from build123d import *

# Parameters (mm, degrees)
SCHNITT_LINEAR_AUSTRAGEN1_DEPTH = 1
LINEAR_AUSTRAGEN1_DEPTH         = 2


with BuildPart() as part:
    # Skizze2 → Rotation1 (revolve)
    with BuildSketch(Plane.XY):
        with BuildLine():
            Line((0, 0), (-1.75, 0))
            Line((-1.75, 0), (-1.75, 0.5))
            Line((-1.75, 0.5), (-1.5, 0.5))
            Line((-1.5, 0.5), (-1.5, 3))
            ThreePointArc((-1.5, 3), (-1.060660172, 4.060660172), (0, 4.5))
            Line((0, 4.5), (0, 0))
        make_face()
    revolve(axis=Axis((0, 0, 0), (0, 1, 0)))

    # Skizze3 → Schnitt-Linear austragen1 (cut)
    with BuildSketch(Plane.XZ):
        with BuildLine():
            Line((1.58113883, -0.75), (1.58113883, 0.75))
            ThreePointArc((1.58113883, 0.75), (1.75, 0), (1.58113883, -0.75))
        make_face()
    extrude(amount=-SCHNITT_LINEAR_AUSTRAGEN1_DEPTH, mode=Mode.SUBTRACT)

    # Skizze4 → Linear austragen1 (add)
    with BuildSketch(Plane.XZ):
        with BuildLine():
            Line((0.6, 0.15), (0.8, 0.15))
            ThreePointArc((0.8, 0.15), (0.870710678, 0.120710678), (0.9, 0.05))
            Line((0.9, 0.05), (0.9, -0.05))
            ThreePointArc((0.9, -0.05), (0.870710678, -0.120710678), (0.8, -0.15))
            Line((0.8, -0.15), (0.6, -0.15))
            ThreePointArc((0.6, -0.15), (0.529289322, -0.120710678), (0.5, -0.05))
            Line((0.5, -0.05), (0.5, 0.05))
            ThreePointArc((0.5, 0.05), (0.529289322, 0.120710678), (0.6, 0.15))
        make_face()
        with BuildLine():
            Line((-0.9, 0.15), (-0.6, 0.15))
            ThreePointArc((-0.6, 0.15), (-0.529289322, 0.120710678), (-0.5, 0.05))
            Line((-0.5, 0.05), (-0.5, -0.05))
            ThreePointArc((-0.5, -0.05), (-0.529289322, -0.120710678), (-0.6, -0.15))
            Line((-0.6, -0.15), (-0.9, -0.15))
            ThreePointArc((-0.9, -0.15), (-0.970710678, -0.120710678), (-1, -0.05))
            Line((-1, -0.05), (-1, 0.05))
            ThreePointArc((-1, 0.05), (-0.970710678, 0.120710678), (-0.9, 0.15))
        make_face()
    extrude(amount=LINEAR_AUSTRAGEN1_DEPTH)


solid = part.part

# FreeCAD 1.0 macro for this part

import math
import FreeCAD as App
import Part
import Sketcher

doc = App.newDocument("Part")
params = doc.addObject("Spreadsheet::Sheet", "Params")
for row, (alias, value) in enumerate([
    ("sketch1_radius", "1.5 mm"),
    ("sketch1_height", "4.5 mm"),
    ("sketch1_height2", "2.5 mm"),
    ("sketch1_width", "1.75 mm"),
    ("revolution_angle", "360 deg"),
    ("sketch2_radius", "1.75 mm"),
    ("sketch2_height", "1.5 mm"),
    ("pocket1_length", "1 mm"),
    ("sketch3_radius", "0.1 mm"),
    ("sketch3_width", "0.2 mm"),
    ("sketch3_width2", "0.3 mm"),
    ("sketch3_height", "0.1 mm"),
    ("pad1_length", "2 mm"),
], start=1):
    params.set(f"A{row}", alias)
    params.set(f"B{row}", "=" + value)
    params.setAlias(f"B{row}", alias)

body = doc.addObject("PartDesign::Body", "Body")

sketch1 = body.newObject("Sketcher::SketchObject", "Sketch")
sketch1.AttachmentSupport = (doc.getObject("XY_Plane"), [""])
sketch1.MapMode = "FlatFace"
sketch1.addGeometry([
    Part.LineSegment(App.Vector(-1.75, 0, 0), App.Vector(0, 0, 0)),
    Part.LineSegment(App.Vector(0, 0, 0), App.Vector(0, 4.5, 0)),
    Part.ArcOfCircle(Part.Circle(App.Vector(0, 3, 0), App.Vector(0, 0, 1), 1.5), math.radians(90), math.radians(180)),
    Part.LineSegment(App.Vector(-1.5, 3, 0), App.Vector(-1.5, 0.5, 0)),
    Part.LineSegment(App.Vector(-1.5, 0.5, 0), App.Vector(-1.75, 0.5, 0)),
    Part.LineSegment(App.Vector(-1.75, 0.5, 0), App.Vector(-1.75, 0, 0)),
], False)
sketch1.addConstraint([
    Sketcher.Constraint("Coincident", 0, 2, 1, 1),
    Sketcher.Constraint("Coincident", 1, 2, 2, 1),
    Sketcher.Constraint("Tangent", 2, 2, 3, 1),
    Sketcher.Constraint("Coincident", 3, 2, 4, 1),
    Sketcher.Constraint("Coincident", 4, 2, 5, 1),
    Sketcher.Constraint("Coincident", 5, 2, 0, 1),
    Sketcher.Constraint("Horizontal", 0),
    Sketcher.Constraint("Vertical", 1),
    Sketcher.Constraint("Vertical", 3),
    Sketcher.Constraint("Horizontal", 4),
    Sketcher.Constraint("Vertical", 5),
    Sketcher.Constraint("Coincident", 0, 2, -1, 1),
    Sketcher.Constraint("PointOnObject", 2, 3, -2),
    Sketcher.Constraint("Radius", 2, 1.5),
    Sketcher.Constraint("DistanceY", 1, 1, 1, 2, 4.5),
    Sketcher.Constraint("DistanceY", 3, 2, 3, 1, 2.5),
    Sketcher.Constraint("DistanceX", 0, 1, 0, 2, 1.75),
])
sketch1.setExpression("Constraints[13]", "Params.sketch1_radius")
sketch1.setExpression("Constraints[14]", "Params.sketch1_height")
sketch1.setExpression("Constraints[15]", "Params.sketch1_height2")
sketch1.setExpression("Constraints[16]", "Params.sketch1_width")
revolution = body.newObject("PartDesign::Revolution", "Revolution")
revolution.Profile = sketch1
revolution.ReferenceAxis = (sketch1, ["V_Axis"])
revolution.setExpression("Angle", "Params.revolution_angle")

sketch2 = body.newObject("Sketcher::SketchObject", "Sketch001")
sketch2.AttachmentSupport = (doc.getObject("XZ_Plane"), [""])
sketch2.MapMode = "FlatFace"
sketch2.addGeometry([
    Part.LineSegment(App.Vector(1.6, 0.8, 0), App.Vector(1.6, -0.8, 0)),
    Part.ArcOfCircle(Part.Circle(App.Vector(0, 0, 0), App.Vector(0, 0, 1), 1.7), math.radians(-25), math.radians(25)),
], False)
sketch2.addConstraint([
    Sketcher.Constraint("Coincident", 0, 1, 1, 2),
    Sketcher.Constraint("Coincident", 1, 1, 0, 2),
    Sketcher.Constraint("Vertical", 0),
    Sketcher.Constraint("Coincident", 1, 3, -1, 1),
    Sketcher.Constraint("Radius", 1, 1.75),
    Sketcher.Constraint("DistanceY", 0, 2, 0, 1, 1.5),
])
sketch2.setExpression("Constraints[4]", "Params.sketch2_radius")
sketch2.setExpression("Constraints[5]", "Params.sketch2_height")
pocket1 = body.newObject("PartDesign::Pocket", "Pocket")
pocket1.Profile = sketch2
pocket1.setExpression("Length", "Params.pocket1_length")

sketch3 = body.newObject("Sketcher::SketchObject", "Sketch002")
sketch3.AttachmentSupport = (doc.getObject("XZ_Plane"), [""])
sketch3.MapMode = "FlatFace"
sketch3.addGeometry([
    Part.LineSegment(App.Vector(0.8, 0.15, 0), App.Vector(0.6, 0.15, 0)),
    Part.ArcOfCircle(Part.Circle(App.Vector(0.6, 0.05, 0), App.Vector(0, 0, 1), 0.1), math.radians(90), math.radians(180)),
    Part.LineSegment(App.Vector(0.5, 0.05, 0), App.Vector(0.5, -0.05, 0)),
    Part.ArcOfCircle(Part.Circle(App.Vector(0.6, -0.05, 0), App.Vector(0, 0, 1), 0.1), math.radians(180), math.radians(270)),
    Part.LineSegment(App.Vector(0.6, -0.15, 0), App.Vector(0.8, -0.15, 0)),
    Part.ArcOfCircle(Part.Circle(App.Vector(0.8, -0.05, 0), App.Vector(0, 0, 1), 0.1), math.radians(-90), math.radians(0)),
    Part.LineSegment(App.Vector(0.9, -0.05, 0), App.Vector(0.9, 0.05, 0)),
    Part.ArcOfCircle(Part.Circle(App.Vector(0.8, 0.05, 0), App.Vector(0, 0, 1), 0.1), math.radians(0), math.radians(90)),
    Part.LineSegment(App.Vector(-0.6, 0.15, 0), App.Vector(-0.9, 0.15, 0)),
    Part.ArcOfCircle(Part.Circle(App.Vector(-0.9, 0.05, 0), App.Vector(0, 0, 1), 0.1), math.radians(90), math.radians(180)),
    Part.LineSegment(App.Vector(-1, 0.05, 0), App.Vector(-1, -0.05, 0)),
    Part.ArcOfCircle(Part.Circle(App.Vector(-0.9, -0.05, 0), App.Vector(0, 0, 1), 0.1), math.radians(180), math.radians(270)),
    Part.LineSegment(App.Vector(-0.9, -0.15, 0), App.Vector(-0.6, -0.15, 0)),
    Part.ArcOfCircle(Part.Circle(App.Vector(-0.6, -0.05, 0), App.Vector(0, 0, 1), 0.1), math.radians(-90), math.radians(0)),
    Part.LineSegment(App.Vector(-0.5, -0.05, 0), App.Vector(-0.5, 0.05, 0)),
    Part.ArcOfCircle(Part.Circle(App.Vector(-0.6, 0.05, 0), App.Vector(0, 0, 1), 0.1), math.radians(0), math.radians(90)),
], False)
sketch3.addConstraint([
    Sketcher.Constraint("Tangent", 0, 2, 1, 1),
    Sketcher.Constraint("Tangent", 1, 2, 2, 1),
    Sketcher.Constraint("Tangent", 2, 2, 3, 1),
    Sketcher.Constraint("Tangent", 3, 2, 4, 1),
    Sketcher.Constraint("Tangent", 4, 2, 5, 1),
    Sketcher.Constraint("Tangent", 5, 2, 6, 1),
    Sketcher.Constraint("Tangent", 6, 2, 7, 1),
    Sketcher.Constraint("Tangent", 7, 2, 0, 1),
    Sketcher.Constraint("Tangent", 8, 2, 9, 1),
    Sketcher.Constraint("Tangent", 9, 2, 10, 1),
    Sketcher.Constraint("Tangent", 10, 2, 11, 1),
    Sketcher.Constraint("Tangent", 11, 2, 12, 1),
    Sketcher.Constraint("Tangent", 12, 2, 13, 1),
    Sketcher.Constraint("Tangent", 13, 2, 14, 1),
    Sketcher.Constraint("Tangent", 14, 2, 15, 1),
    Sketcher.Constraint("Tangent", 15, 2, 8, 1),
    Sketcher.Constraint("Horizontal", 0),
    Sketcher.Constraint("Vertical", 2),
    Sketcher.Constraint("Horizontal", 4),
    Sketcher.Constraint("Vertical", 6),
    Sketcher.Constraint("Horizontal", 8),
    Sketcher.Constraint("Vertical", 10),
    Sketcher.Constraint("Horizontal", 12),
    Sketcher.Constraint("Vertical", 14),
    Sketcher.Constraint("Equal", 1, 3),
    Sketcher.Constraint("Equal", 3, 5),
    Sketcher.Constraint("Equal", 5, 7),
    Sketcher.Constraint("Equal", 7, 9),
    Sketcher.Constraint("Equal", 9, 11),
    Sketcher.Constraint("Equal", 11, 13),
    Sketcher.Constraint("Equal", 13, 15),
    Sketcher.Constraint("Symmetric", 1, 3, 13, 3, -1, 1),
    Sketcher.Constraint("Horizontal", 7, 3, 9, 3),
    Sketcher.Constraint("Horizontal", 5, 3, 11, 3),
    Sketcher.Constraint("Radius", 1, 0.1),
    Sketcher.Constraint("DistanceX", 0, 2, 0, 1, 0.2),
    Sketcher.Constraint("DistanceX", 8, 2, 8, 1, 0.3),
    Sketcher.Constraint("DistanceY", 2, 2, 2, 1, 0.1),
    Sketcher.Constraint("DistanceX", 9, 2, -1, 1, 1.0),
])
sketch3.setExpression("Constraints[34]", "Params.sketch3_radius")
sketch3.setExpression("Constraints[35]", "Params.sketch3_width")
sketch3.setExpression("Constraints[36]", "Params.sketch3_width2")
sketch3.setExpression("Constraints[37]", "Params.sketch3_height")
pad1 = body.newObject("PartDesign::Pad", "Pad")
pad1.Profile = sketch3
pad1.setExpression("Length", "Params.pad1_length")

doc.recompute()
